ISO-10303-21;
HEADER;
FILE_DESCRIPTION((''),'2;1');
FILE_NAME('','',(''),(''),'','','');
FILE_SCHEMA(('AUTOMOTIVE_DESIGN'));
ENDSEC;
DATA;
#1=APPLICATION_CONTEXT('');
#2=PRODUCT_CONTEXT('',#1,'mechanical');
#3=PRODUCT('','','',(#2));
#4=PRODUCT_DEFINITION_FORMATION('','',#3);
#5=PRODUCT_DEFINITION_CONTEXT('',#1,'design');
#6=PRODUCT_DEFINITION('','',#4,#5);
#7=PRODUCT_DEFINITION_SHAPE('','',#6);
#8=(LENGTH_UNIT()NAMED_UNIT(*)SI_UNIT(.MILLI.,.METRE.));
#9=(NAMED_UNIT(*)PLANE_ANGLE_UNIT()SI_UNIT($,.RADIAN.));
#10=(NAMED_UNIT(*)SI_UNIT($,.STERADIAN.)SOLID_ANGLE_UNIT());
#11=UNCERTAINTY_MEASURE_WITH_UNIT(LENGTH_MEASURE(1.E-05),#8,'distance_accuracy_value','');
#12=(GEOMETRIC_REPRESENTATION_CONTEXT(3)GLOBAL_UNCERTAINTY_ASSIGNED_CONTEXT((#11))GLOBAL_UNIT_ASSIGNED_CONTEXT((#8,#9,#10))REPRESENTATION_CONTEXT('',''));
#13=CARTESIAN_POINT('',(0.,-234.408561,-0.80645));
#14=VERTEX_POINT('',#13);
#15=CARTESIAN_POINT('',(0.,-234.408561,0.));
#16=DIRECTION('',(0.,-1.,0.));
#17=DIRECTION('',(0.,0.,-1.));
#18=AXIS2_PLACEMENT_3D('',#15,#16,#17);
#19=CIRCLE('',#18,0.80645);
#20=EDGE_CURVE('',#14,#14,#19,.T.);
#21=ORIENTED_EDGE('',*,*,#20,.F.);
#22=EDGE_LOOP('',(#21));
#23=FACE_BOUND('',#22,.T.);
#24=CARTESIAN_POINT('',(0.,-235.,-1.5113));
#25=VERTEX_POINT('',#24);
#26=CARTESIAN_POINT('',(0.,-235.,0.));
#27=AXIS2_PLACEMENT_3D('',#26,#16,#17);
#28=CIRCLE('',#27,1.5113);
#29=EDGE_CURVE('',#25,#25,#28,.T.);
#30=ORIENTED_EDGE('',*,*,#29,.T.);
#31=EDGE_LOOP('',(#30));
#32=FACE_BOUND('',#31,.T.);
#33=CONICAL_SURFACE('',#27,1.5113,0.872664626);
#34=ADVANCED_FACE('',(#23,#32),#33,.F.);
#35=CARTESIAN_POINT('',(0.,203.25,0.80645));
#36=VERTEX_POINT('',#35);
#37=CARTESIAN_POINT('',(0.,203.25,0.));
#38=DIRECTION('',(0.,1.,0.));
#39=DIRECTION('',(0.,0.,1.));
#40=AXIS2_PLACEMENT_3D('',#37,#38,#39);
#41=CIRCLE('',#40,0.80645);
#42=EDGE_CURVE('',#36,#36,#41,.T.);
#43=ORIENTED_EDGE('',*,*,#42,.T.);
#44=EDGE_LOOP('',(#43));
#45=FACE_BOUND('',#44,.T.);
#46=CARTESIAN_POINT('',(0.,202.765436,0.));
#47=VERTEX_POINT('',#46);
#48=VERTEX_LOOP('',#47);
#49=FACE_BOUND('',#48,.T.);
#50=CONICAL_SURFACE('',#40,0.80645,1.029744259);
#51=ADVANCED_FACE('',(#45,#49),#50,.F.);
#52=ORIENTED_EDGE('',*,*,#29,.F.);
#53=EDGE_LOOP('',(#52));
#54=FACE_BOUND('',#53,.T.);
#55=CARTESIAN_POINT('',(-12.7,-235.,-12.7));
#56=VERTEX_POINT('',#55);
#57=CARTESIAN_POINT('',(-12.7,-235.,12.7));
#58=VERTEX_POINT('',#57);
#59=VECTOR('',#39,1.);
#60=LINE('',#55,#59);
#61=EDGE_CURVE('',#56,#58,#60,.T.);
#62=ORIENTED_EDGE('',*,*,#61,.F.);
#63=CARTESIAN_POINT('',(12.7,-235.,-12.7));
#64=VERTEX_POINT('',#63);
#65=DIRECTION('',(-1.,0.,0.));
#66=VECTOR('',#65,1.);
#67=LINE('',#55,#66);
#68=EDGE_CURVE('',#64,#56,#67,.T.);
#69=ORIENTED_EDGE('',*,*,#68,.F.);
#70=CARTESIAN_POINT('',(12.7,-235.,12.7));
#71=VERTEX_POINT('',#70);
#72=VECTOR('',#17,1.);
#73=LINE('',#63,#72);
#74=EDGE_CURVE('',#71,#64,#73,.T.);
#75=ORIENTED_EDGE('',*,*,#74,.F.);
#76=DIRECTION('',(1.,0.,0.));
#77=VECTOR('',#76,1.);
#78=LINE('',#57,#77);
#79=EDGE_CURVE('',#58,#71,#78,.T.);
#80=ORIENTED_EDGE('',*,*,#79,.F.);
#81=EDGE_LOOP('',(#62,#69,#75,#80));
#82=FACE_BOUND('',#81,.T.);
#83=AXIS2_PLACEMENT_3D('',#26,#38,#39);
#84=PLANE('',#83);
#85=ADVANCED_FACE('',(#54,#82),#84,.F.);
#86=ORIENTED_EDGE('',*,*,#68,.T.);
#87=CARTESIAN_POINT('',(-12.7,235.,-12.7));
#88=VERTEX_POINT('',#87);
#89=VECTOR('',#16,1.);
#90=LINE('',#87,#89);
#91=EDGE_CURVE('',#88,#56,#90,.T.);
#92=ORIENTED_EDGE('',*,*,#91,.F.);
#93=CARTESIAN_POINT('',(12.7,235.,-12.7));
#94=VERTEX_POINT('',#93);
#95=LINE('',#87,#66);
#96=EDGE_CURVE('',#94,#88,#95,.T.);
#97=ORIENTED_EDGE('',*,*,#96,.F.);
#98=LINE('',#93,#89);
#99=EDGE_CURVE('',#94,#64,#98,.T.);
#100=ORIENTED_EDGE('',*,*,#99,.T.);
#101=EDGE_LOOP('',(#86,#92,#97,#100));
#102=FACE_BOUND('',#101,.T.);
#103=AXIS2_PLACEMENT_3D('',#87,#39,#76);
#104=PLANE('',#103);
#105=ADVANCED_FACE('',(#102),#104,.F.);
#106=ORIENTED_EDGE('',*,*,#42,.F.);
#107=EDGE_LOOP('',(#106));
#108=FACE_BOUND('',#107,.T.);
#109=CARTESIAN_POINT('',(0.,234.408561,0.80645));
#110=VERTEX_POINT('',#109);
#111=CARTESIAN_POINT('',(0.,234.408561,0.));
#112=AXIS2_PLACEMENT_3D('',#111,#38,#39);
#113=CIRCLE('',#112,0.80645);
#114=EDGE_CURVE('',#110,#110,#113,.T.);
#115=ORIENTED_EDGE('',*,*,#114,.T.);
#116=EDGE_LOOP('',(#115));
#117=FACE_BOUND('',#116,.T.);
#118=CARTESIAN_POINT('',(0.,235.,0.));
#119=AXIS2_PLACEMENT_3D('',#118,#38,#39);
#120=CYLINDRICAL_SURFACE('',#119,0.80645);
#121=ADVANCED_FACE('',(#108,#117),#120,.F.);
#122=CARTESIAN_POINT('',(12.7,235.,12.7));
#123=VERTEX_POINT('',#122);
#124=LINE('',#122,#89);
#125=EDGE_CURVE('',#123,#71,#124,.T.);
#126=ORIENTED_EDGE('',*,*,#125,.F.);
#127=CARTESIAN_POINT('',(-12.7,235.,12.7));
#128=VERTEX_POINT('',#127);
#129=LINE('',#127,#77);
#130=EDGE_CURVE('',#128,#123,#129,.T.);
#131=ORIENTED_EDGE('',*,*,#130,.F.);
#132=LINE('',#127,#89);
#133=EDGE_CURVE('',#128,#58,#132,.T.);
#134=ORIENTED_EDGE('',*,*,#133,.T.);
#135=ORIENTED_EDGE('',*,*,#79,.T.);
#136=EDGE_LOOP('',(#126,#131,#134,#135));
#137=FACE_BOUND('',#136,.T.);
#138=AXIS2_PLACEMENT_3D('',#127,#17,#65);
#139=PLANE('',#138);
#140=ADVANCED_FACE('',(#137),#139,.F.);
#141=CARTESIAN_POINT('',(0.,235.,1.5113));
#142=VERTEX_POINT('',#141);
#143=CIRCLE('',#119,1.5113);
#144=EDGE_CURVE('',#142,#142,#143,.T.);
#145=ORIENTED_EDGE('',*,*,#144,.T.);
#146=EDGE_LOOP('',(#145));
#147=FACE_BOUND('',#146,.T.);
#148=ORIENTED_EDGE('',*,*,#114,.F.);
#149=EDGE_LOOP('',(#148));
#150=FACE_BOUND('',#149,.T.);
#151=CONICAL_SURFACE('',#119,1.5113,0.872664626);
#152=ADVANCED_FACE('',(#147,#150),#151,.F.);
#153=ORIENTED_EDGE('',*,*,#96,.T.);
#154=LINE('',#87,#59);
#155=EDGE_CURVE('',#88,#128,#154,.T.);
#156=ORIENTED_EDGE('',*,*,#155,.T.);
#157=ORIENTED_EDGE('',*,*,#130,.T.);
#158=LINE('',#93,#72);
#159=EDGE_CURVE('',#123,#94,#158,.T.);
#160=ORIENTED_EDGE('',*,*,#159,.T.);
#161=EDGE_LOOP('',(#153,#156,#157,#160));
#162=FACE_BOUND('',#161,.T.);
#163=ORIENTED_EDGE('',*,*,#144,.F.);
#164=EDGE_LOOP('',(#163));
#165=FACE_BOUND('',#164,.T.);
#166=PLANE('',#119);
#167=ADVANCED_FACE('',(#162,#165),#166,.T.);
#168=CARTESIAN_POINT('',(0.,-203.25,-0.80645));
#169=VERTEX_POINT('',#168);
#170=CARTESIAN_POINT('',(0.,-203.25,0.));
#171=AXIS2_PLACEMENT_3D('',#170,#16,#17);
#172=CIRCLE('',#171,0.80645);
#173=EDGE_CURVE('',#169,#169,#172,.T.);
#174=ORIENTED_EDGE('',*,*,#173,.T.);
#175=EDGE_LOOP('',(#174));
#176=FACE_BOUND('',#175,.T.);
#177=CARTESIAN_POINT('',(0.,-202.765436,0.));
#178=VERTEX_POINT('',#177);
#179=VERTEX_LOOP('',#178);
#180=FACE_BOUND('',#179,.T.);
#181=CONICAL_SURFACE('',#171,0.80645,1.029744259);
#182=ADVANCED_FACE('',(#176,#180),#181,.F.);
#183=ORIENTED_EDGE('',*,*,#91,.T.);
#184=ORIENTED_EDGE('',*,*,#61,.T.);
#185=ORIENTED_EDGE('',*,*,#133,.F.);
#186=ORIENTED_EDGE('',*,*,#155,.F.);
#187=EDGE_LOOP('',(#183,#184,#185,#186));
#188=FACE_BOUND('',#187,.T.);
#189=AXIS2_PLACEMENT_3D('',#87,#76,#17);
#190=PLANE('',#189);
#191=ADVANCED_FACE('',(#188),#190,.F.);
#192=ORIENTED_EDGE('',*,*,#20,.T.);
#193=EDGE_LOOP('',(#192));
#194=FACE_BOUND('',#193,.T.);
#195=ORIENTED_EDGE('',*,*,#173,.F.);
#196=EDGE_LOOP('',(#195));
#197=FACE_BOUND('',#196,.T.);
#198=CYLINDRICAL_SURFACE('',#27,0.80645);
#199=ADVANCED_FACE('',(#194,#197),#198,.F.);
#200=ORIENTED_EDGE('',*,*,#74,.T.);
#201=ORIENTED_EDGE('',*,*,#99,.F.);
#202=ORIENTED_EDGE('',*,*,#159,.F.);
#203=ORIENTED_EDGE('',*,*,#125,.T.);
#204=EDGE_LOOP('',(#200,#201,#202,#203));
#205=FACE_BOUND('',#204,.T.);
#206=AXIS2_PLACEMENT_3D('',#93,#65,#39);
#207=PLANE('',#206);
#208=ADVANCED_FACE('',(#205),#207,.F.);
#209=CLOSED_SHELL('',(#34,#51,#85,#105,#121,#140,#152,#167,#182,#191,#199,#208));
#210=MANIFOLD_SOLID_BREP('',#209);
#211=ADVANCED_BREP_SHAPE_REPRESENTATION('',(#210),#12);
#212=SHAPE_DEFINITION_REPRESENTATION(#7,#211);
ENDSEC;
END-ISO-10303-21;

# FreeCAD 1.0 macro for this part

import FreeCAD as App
import Part
import Sketcher
from FreeCAD import Vector
Q = App.Units.Quantity


def add_polygon(sketch, points):
    """Adds a closed chain of lines whose ends are joined by coincident constraints."""
    first, n = sketch.GeometryCount, len(points)
    for a, b in zip(points, points[1:] + points[:1]):
        sketch.addGeometry(Part.LineSegment(App.Vector(*a, 0), App.Vector(*b, 0)), False)
    for i in range(n):
        sketch.addConstraint(Sketcher.Constraint("Coincident", first + i, 2, first + (i + 1) % n, 1))

doc = App.newDocument("Part")
body = doc.addObject("PartDesign::Body", "Body")

sketch1 = doc.addObject("Sketcher::SketchObject", "Sketch")
body.addObject(sketch1)
sketch1.AttachmentSupport = (doc.XZ_Plane, [""])
sketch1.MapMode = "FlatFace"
add_polygon(sketch1, [(-13, -13), (-13, 13), (13, 13), (13, -13)])
sketch1.addConstraint(Sketcher.Constraint("Vertical", 0))
sketch1.addConstraint(Sketcher.Constraint("Horizontal", 1))
sketch1.addConstraint(Sketcher.Constraint("Vertical", 2))
sketch1.addConstraint(Sketcher.Constraint("Horizontal", 3))
sketch1.addConstraint(Sketcher.Constraint("Symmetric", 0, 2, 2, 2, -1, 1))
sketch1.addConstraint(Sketcher.Constraint("Equal", 3, 0))
sketch1.addConstraint(Sketcher.Constraint("DistanceX", 1, 1, 1, 2, Q("25.4 mm")))
pad1 = doc.addObject("PartDesign::Pad", "Pad")
body.addObject(pad1)
pad1.Profile = sketch1
pad1.Length = 470
pad1.Midplane = True

sketch2 = doc.addObject("Sketcher::SketchObject", "Sketch001")
body.addObject(sketch2)
sketch2.AttachmentSupport = (doc.YZ_Plane, [""])
sketch2.MapMode = "FlatFace"
add_polygon(sketch2, [(202.8, 0), (235, 0), (235, 1.5), (234.4, 0.8), (203.2, 0.8)])
sketch2.addConstraint(Sketcher.Constraint("Horizontal", 0))
sketch2.addConstraint(Sketcher.Constraint("Vertical", 1))
sketch2.addConstraint(Sketcher.Constraint("Horizontal", 3))
sketch2.addConstraint(Sketcher.Constraint("PointOnObject", 0, 2, -1))
sketch2.addConstraint(Sketcher.Constraint("Angle", 2, Q("-130 deg")))
sketch2.addConstraint(Sketcher.Constraint("Angle", 4, Q("-121 deg")))
sketch2.addConstraint(Sketcher.Constraint("DistanceX", -1, 1, 0, 2, Q("235 mm")))
sketch2.addConstraint(Sketcher.Constraint("DistanceX", -1, 1, 3, 2, Q("203.25 mm")))
sketch2.addConstraint(Sketcher.Constraint("DistanceY", 1, 1, 1, 2, Q("1.5113 mm")))
sketch2.addConstraint(Sketcher.Constraint("DistanceX", 3, 2, 3, 1, Q("31.158561 mm")))
groove = doc.addObject("PartDesign::Groove", "Groove")
body.addObject(groove)
groove.Profile = sketch2
groove.ReferenceAxis = (sketch2, ["H_Axis"])
groove.Angle = 360
doc.recompute()

mirrored = doc.addObject("PartDesign::Mirrored", "Mirrored")
body.addObject(mirrored)
mirrored.Originals = [groove]
mirrored.MirrorPlane = (doc.XZ_Plane, [""])
body.Tip = mirrored

doc.recompute()
